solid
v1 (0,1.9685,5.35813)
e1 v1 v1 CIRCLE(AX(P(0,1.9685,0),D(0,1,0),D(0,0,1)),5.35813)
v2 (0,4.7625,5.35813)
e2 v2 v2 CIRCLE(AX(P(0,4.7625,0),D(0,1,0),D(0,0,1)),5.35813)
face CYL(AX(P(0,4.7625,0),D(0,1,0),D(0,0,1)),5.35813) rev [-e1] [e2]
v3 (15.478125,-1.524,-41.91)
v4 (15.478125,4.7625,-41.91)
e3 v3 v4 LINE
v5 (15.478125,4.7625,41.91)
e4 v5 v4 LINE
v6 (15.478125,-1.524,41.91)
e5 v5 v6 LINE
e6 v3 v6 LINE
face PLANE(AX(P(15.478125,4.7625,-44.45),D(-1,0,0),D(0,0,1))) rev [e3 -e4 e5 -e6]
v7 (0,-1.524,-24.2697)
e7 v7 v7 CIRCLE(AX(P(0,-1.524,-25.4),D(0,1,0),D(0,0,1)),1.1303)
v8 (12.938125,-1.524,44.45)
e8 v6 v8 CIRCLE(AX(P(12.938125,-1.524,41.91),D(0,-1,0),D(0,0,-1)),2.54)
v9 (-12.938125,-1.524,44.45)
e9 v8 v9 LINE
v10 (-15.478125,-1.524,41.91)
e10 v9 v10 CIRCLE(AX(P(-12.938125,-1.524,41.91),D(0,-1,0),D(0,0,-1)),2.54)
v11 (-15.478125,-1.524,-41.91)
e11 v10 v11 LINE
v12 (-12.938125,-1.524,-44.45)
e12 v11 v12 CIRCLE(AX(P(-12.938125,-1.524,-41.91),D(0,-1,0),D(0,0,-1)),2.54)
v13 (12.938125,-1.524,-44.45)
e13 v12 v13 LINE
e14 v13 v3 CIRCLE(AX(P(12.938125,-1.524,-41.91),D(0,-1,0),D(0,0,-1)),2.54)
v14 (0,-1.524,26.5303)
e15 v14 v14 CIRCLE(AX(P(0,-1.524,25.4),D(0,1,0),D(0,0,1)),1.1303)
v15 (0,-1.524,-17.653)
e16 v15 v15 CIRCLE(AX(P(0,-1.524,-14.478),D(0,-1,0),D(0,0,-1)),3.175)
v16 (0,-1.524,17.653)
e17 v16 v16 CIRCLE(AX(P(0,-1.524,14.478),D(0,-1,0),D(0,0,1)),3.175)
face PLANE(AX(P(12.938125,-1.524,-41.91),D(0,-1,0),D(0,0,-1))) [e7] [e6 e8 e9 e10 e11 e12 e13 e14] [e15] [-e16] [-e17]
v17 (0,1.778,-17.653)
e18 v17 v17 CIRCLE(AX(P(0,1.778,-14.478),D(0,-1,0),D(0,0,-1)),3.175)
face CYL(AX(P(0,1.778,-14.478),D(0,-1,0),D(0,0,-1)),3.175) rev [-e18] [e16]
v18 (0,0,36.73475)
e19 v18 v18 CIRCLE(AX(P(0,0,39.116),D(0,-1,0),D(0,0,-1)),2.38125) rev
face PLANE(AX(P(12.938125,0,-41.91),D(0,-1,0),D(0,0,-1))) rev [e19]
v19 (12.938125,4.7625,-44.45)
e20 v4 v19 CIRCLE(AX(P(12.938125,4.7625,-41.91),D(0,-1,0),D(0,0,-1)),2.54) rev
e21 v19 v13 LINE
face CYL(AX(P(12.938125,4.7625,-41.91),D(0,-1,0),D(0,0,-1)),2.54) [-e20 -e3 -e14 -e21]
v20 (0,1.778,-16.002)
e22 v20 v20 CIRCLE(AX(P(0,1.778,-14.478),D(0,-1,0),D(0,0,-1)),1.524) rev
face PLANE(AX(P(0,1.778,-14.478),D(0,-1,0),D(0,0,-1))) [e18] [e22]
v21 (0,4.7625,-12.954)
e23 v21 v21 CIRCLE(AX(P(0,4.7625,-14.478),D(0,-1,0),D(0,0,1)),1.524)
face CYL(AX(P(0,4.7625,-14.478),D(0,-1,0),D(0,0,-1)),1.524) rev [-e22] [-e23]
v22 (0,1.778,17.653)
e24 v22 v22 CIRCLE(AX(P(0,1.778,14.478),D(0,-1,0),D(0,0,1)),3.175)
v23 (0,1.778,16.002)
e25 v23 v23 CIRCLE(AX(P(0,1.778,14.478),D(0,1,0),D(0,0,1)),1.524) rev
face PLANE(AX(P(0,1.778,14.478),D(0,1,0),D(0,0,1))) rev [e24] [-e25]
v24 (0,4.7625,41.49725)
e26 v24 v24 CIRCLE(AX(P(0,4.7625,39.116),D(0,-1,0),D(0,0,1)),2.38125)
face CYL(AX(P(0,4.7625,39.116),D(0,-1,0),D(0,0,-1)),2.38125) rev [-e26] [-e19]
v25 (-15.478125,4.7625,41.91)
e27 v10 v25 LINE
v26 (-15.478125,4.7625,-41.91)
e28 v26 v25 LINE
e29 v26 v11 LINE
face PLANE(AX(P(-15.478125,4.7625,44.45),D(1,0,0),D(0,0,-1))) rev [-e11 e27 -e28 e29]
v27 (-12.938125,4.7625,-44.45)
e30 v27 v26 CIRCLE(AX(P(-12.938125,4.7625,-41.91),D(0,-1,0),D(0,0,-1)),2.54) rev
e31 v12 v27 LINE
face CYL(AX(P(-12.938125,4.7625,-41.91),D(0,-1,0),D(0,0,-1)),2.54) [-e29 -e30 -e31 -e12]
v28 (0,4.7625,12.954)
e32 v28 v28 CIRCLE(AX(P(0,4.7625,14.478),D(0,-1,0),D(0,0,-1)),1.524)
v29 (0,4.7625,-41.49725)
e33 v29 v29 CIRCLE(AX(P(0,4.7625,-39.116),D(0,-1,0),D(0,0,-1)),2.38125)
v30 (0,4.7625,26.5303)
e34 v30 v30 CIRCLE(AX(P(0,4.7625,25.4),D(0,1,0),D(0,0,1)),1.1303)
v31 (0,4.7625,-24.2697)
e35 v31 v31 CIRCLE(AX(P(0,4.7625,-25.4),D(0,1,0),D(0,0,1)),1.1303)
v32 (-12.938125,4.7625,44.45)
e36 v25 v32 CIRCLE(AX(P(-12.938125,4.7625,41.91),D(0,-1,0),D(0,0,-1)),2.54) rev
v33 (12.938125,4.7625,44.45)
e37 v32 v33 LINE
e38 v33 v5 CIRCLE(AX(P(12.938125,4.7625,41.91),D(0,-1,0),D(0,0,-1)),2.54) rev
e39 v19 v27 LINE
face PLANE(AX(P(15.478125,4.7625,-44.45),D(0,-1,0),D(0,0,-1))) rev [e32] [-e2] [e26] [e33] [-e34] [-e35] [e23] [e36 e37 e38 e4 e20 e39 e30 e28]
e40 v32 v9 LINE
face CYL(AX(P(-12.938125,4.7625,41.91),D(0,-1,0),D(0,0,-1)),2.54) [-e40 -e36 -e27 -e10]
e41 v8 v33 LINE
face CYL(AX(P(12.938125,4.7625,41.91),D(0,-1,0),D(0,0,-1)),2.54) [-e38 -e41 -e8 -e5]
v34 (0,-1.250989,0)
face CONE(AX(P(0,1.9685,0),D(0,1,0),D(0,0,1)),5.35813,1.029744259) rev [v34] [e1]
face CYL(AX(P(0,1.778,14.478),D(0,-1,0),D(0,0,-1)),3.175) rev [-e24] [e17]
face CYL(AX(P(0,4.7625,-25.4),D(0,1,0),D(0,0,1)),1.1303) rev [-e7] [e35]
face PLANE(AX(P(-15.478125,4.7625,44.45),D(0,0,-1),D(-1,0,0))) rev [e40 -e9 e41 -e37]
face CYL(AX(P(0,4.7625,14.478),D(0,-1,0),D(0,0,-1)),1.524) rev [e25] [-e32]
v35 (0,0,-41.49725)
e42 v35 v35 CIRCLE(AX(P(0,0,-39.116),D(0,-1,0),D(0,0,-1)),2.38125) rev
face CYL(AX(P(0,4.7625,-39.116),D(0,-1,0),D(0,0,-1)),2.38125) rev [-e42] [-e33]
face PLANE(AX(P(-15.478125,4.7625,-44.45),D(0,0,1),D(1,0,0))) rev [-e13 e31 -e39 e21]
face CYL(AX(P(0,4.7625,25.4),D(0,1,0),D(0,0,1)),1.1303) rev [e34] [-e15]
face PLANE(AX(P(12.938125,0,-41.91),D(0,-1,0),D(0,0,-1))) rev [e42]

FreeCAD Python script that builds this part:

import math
import FreeCAD as App
import Part
import Sketcher
Q = App.Units.Quantity


def edges_at(feature, points):
    """Names of the edges that pass closest to the given points."""
    edges = feature.Shape.Edges
    near = lambda p: min(range(len(edges)), key=lambda i: edges[i].distToShape(Part.Vertex(*p))[0])
    return sorted({f"Edge{near(p) + 1}" for p in points})

doc = App.newDocument("Part")
body = doc.addObject("PartDesign::Body", "Body")

sketch1 = body.newObject("Sketcher::SketchObject", "Sketch")
sketch1.AttachmentSupport = (doc.getObject("XZ_Plane"), [""])
sketch1.MapMode = "FlatFace"
sketch1.addGeometry(Part.LineSegment(App.Vector(-15, -44, 0), App.Vector(-15, 44, 0)), False)
sketch1.addGeometry(Part.LineSegment(App.Vector(-15, 44, 0), App.Vector(15, 44, 0)), False)
sketch1.addGeometry(Part.LineSegment(App.Vector(15, 44, 0), App.Vector(15, -44, 0)), False)
sketch1.addGeometry(Part.LineSegment(App.Vector(15, -44, 0), App.Vector(-15, -44, 0)), False)
sketch1.addConstraint(Sketcher.Constraint("Coincident", 0, 2, 1, 1))
sketch1.addConstraint(Sketcher.Constraint("Coincident", 1, 2, 2, 1))
sketch1.addConstraint(Sketcher.Constraint("Coincident", 2, 2, 3, 1))
sketch1.addConstraint(Sketcher.Constraint("Coincident", 3, 2, 0, 1))
sketch1.addConstraint(Sketcher.Constraint("Vertical", 0))
sketch1.addConstraint(Sketcher.Constraint("Horizontal", 1))
sketch1.addConstraint(Sketcher.Constraint("Vertical", 2))
sketch1.addConstraint(Sketcher.Constraint("Horizontal", 3))
sketch1.addConstraint(Sketcher.Constraint("Symmetric", 0, 2, 2, 2, -1, 1))
sketch1.addConstraint(Sketcher.Constraint("DistanceY", 0, 1, 0, 2, Q("3.5 in")))
sketch1.addConstraint(Sketcher.Constraint("DistanceX", 1, 1, 1, 2, Q("1.21875 in")))
pad1 = body.newObject("PartDesign::Pad", "Pad")
pad1.Profile = sketch1
pad1.Length = Q("0.1875 in")
pad1.Reversed = True
doc.recompute()

fillet = body.newObject("PartDesign::Fillet", "Fillet")
fillet.Base = (pad1, edges_at(pad1, [
    (15.478, 2.381, -44.45),
    (15.478, 2.381, 44.45),
    (-15.478, 2.381, 44.45),
    (-15.478, 2.381, -44.45),
]))
fillet.Radius = Q("0.1 in")

sketch2 = body.newObject("Sketcher::SketchObject", "Sketch001")
sketch2.AttachmentSupport = (doc.getObject("XZ_Plane"), [""])
sketch2.MapMode = "FlatFace"
sketch2.addGeometry(Part.Circle(App.Vector(0, 14.5, 0), App.Vector(0, 0, 1), 1.5), False)
sketch2.addGeometry(Part.Circle(App.Vector(0, -14.5, 0), App.Vector(0, 0, 1), 1.5), False)
sketch2.addConstraint(Sketcher.Constraint("Equal", 0, 1))
sketch2.addConstraint(Sketcher.Constraint("Symmetric", 0, 3, 1, 3, -1, 1))
sketch2.addConstraint(Sketcher.Constraint("PointOnObject", 0, 3, -2))
sketch2.addConstraint(Sketcher.Constraint("Diameter", 0, Q("0.12 in")))
sketch2.addConstraint(Sketcher.Constraint("DistanceY", -1, 1, 0, 3, Q("0.57 in")))
pocket1 = body.newObject("PartDesign::Pocket", "Pocket")
pocket1.Profile = sketch2
pocket1.Type = "ThroughAll"

sketch3 = body.newObject("Sketcher::SketchObject", "Sketch002")
sketch3.AttachmentSupport = (doc.getObject("XZ_Plane"), [""])
sketch3.MapMode = "FlatFace"
sketch3.addGeometry(Part.Circle(App.Vector(0, -39.1, 0), App.Vector(0, 0, 1), 2.4), False)
sketch3.addGeometry(Part.Circle(App.Vector(0, 39.1, 0), App.Vector(0, 0, 1), 2.4), False)
sketch3.addConstraint(Sketcher.Constraint("Equal", 0, 1))
sketch3.addConstraint(Sketcher.Constraint("Symmetric", 0, 3, 1, 3, -1, 1))
sketch3.addConstraint(Sketcher.Constraint("PointOnObject", 0, 3, -2))
sketch3.addConstraint(Sketcher.Constraint("Diameter", 0, Q("0.1875 in")))
sketch3.addConstraint(Sketcher.Constraint("DistanceY", 0, 3, -1, 1, Q("1.54 in")))
pocket2 = body.newObject("PartDesign::Pocket", "Pocket001")
pocket2.Profile = sketch3
pocket2.Type = "ThroughAll"

sketch4 = body.newObject("Sketcher::SketchObject", "Sketch003")
sketch4.AttachmentSupport = (doc.getObject("XZ_Plane"), [""])
sketch4.MapMode = "FlatFace"
sketch4.addGeometry(Part.LineSegment(App.Vector(-12.9, -44.5, 0), App.Vector(12.9, -44.5, 0)), False)
sketch4.addGeometry(Part.ArcOfCircle(Part.Circle(App.Vector(12.9, -41.9, 0), App.Vector(0, 0, 1), 2.5), math.radians(-90), math.radians(0)), False)
sketch4.addGeometry(Part.LineSegment(App.Vector(15.5, -41.9, 0), App.Vector(15.5, 41.9, 0)), False)
sketch4.addGeometry(Part.ArcOfCircle(Part.Circle(App.Vector(12.9, 41.9, 0), App.Vector(0, 0, 1), 2.5), math.radians(0), math.radians(90)), False)
sketch4.addGeometry(Part.LineSegment(App.Vector(12.9, 44.5, 0), App.Vector(-12.9, 44.5, 0)), False)
sketch4.addGeometry(Part.ArcOfCircle(Part.Circle(App.Vector(-12.9, 41.9, 0), App.Vector(0, 0, 1), 2.5), math.radians(90), math.radians(180)), False)
sketch4.addGeometry(Part.LineSegment(App.Vector(-15.5, 41.9, 0), App.Vector(-15.5, -41.9, 0)), False)
sketch4.addGeometry(Part.ArcOfCircle(Part.Circle(App.Vector(-12.9, -41.9, 0), App.Vector(0, 0, 1), 2.5), math.radians(-180), math.radians(-90)), False)
sketch4.addConstraint(Sketcher.Constraint("Tangent", 0, 2, 1, 1))
sketch4.addConstraint(Sketcher.Constraint("Tangent", 1, 2, 2, 1))
sketch4.addConstraint(Sketcher.Constraint("Tangent", 2, 2, 3, 1))
sketch4.addConstraint(Sketcher.Constraint("Tangent", 3, 2, 4, 1))
sketch4.addConstraint(Sketcher.Constraint("Tangent", 4, 2, 5, 1))
sketch4.addConstraint(Sketcher.Constraint("Tangent", 5, 2, 6, 1))
sketch4.addConstraint(Sketcher.Constraint("Tangent", 6, 2, 7, 1))
sketch4.addConstraint(Sketcher.Constraint("Tangent", 7, 2, 0, 1))
sketch4.addConstraint(Sketcher.Constraint("Horizontal", 0))
sketch4.addConstraint(Sketcher.Constraint("Vertical", 2))
sketch4.addConstraint(Sketcher.Constraint("Horizontal", 4))
sketch4.addConstraint(Sketcher.Constraint("Vertical", 6))
sketch4.addConstraint(Sketcher.Constraint("Equal", 1, 3))
sketch4.addConstraint(Sketcher.Constraint("Equal", 3, 5))
sketch4.addConstraint(Sketcher.Constraint("Equal", 5, 7))
sketch4.addConstraint(Sketcher.Constraint("Symmetric", 1, 3, 5, 3, -1, 1))
sketch4.addConstraint(Sketcher.Constraint("Radius", 1, Q("0.1 in")))
sketch4.addConstraint(Sketcher.Constraint("DistanceY", 2, 1, 2, 2, Q("3.3 in")))
sketch4.addConstraint(Sketcher.Constraint("DistanceX", -1, 1, 1, 2, Q("0.609375 in")))
pad2 = body.newObject("PartDesign::Pad", "Pad001")
pad2.Profile = sketch4
pad2.Length = Q("0.06 in")

sketch5 = body.newObject("Sketcher::SketchObject", "Sketch004")
sketch5.AttachmentSupport = (doc.getObject("XZ_Plane"), [""])
sketch5.MapMode = "FlatFace"
sketch5.AttachmentOffset = App.Placement(App.Vector(0, 0, -0.1875 * 25.4), App.Rotation())
sketch5.addGeometry(Part.Circle(App.Vector(0, 25.4, 0), App.Vector(0, 0, 1), 1.1), False)
sketch5.addGeometry(Part.Circle(App.Vector(0, -25.4, 0), App.Vector(0, 0, 1), 1.1), False)
sketch5.addConstraint(Sketcher.Constraint("Equal", 0, 1))
sketch5.addConstraint(Sketcher.Constraint("Symmetric", 0, 3, 1, 3, -1, 1))
sketch5.addConstraint(Sketcher.Constraint("PointOnObject", 0, 3, -2))
sketch5.addConstraint(Sketcher.Constraint("Diameter", 0, Q("0.089 in")))
sketch5.addConstraint(Sketcher.Constraint("DistanceY", -1, 1, 0, 3, Q("1 in")))
doc.recompute()
hole = body.newObject("PartDesign::Hole", "Hole")
hole.Profile = sketch5
hole.ThreadType = "None"
hole.Diameter = Q("0.089 in")
hole.DepthType = "ThroughAll"
hole.Reversed = True

sketch6 = body.newObject("Sketcher::SketchObject", "Sketch005")
sketch6.AttachmentSupport = (doc.getObject("XZ_Plane"), [""])
sketch6.MapMode = "FlatFace"
sketch6.addGeometry(Part.Circle(App.Vector(0, 14.5, 0), App.Vector(0, 0, 1), 1.5), False)
sketch6.addGeometry(Part.Circle(App.Vector(0, -14.5, 0), App.Vector(0, 0, 1), 1.5), False)
sketch6.addConstraint(Sketcher.Constraint("Equal", 0, 1))
sketch6.addConstraint(Sketcher.Constraint("Symmetric", 0, 3, 1, 3, -1, 1))
sketch6.addConstraint(Sketcher.Constraint("PointOnObject", 0, 3, -2))
sketch6.addConstraint(Sketcher.Constraint("Diameter", 0, Q("0.12 in")))
sketch6.addConstraint(Sketcher.Constraint("DistanceY", -1, 1, 0, 3, Q("0.57 in")))
pocket3 = body.newObject("PartDesign::Pocket", "Pocket002")
pocket3.Profile = sketch6
pocket3.Type = "ThroughAll"
pocket3.Reversed = True

sketch7 = body.newObject("Sketcher::SketchObject", "Sketch006")
sketch7.AttachmentSupport = (doc.getObject("XZ_Plane"), [""])
sketch7.MapMode = "FlatFace"
sketch7.AttachmentOffset = App.Placement(App.Vector(0, 0, 0.06 * 25.4), App.Rotation())
sketch7.addGeometry(Part.Circle(App.Vector(0, -14.5, 0), App.Vector(0, 0, 1), 3.2), False)
sketch7.addGeometry(Part.Circle(App.Vector(0, 14.5, 0), App.Vector(0, 0, 1), 3.2), False)
sketch7.addConstraint(Sketcher.Constraint("Equal", 0, 1))
sketch7.addConstraint(Sketcher.Constraint("Symmetric", 0, 3, 1, 3, -1, 1))
sketch7.addConstraint(Sketcher.Constraint("PointOnObject", 0, 3, -2))
sketch7.addConstraint(Sketcher.Constraint("Diameter", 0, Q("0.25 in")))
sketch7.addConstraint(Sketcher.Constraint("DistanceY", 0, 3, -1, 1, Q("0.57 in")))
pocket4 = body.newObject("PartDesign::Pocket", "Pocket003")
pocket4.Profile = sketch7
pocket4.Length = Q("0.13 in")

sketch8 = body.newObject("Sketcher::SketchObject", "Sketch007")
sketch8.AttachmentSupport = (doc.getObject("XZ_Plane"), [""])
sketch8.MapMode = "FlatFace"
sketch8.AttachmentOffset = App.Placement(App.Vector(0, 0, -0.1875 * 25.4), App.Rotation())
sketch8.addGeometry(Part.Circle(App.Vector(0, 0, 0), App.Vector(0, 0, 1), 5), False)
sketch8.addConstraint(Sketcher.Constraint("Coincident", 0, 3, -1, 1))
sketch8.addConstraint(Sketcher.Constraint("Diameter", 0, Q("0.4219 in")))
doc.recompute()
hole2 = body.newObject("PartDesign::Hole", "Hole001")
hole2.Profile = sketch8
hole2.ThreadType = "None"
hole2.Diameter = Q("0.4219 in")
hole2.DepthType = "Dimension"
hole2.Depth = Q("0.11 in")
hole2.DrillPoint = "Angled"
hole2.DrillPointAngle = 118
hole2.Reversed = True

doc.recompute()
